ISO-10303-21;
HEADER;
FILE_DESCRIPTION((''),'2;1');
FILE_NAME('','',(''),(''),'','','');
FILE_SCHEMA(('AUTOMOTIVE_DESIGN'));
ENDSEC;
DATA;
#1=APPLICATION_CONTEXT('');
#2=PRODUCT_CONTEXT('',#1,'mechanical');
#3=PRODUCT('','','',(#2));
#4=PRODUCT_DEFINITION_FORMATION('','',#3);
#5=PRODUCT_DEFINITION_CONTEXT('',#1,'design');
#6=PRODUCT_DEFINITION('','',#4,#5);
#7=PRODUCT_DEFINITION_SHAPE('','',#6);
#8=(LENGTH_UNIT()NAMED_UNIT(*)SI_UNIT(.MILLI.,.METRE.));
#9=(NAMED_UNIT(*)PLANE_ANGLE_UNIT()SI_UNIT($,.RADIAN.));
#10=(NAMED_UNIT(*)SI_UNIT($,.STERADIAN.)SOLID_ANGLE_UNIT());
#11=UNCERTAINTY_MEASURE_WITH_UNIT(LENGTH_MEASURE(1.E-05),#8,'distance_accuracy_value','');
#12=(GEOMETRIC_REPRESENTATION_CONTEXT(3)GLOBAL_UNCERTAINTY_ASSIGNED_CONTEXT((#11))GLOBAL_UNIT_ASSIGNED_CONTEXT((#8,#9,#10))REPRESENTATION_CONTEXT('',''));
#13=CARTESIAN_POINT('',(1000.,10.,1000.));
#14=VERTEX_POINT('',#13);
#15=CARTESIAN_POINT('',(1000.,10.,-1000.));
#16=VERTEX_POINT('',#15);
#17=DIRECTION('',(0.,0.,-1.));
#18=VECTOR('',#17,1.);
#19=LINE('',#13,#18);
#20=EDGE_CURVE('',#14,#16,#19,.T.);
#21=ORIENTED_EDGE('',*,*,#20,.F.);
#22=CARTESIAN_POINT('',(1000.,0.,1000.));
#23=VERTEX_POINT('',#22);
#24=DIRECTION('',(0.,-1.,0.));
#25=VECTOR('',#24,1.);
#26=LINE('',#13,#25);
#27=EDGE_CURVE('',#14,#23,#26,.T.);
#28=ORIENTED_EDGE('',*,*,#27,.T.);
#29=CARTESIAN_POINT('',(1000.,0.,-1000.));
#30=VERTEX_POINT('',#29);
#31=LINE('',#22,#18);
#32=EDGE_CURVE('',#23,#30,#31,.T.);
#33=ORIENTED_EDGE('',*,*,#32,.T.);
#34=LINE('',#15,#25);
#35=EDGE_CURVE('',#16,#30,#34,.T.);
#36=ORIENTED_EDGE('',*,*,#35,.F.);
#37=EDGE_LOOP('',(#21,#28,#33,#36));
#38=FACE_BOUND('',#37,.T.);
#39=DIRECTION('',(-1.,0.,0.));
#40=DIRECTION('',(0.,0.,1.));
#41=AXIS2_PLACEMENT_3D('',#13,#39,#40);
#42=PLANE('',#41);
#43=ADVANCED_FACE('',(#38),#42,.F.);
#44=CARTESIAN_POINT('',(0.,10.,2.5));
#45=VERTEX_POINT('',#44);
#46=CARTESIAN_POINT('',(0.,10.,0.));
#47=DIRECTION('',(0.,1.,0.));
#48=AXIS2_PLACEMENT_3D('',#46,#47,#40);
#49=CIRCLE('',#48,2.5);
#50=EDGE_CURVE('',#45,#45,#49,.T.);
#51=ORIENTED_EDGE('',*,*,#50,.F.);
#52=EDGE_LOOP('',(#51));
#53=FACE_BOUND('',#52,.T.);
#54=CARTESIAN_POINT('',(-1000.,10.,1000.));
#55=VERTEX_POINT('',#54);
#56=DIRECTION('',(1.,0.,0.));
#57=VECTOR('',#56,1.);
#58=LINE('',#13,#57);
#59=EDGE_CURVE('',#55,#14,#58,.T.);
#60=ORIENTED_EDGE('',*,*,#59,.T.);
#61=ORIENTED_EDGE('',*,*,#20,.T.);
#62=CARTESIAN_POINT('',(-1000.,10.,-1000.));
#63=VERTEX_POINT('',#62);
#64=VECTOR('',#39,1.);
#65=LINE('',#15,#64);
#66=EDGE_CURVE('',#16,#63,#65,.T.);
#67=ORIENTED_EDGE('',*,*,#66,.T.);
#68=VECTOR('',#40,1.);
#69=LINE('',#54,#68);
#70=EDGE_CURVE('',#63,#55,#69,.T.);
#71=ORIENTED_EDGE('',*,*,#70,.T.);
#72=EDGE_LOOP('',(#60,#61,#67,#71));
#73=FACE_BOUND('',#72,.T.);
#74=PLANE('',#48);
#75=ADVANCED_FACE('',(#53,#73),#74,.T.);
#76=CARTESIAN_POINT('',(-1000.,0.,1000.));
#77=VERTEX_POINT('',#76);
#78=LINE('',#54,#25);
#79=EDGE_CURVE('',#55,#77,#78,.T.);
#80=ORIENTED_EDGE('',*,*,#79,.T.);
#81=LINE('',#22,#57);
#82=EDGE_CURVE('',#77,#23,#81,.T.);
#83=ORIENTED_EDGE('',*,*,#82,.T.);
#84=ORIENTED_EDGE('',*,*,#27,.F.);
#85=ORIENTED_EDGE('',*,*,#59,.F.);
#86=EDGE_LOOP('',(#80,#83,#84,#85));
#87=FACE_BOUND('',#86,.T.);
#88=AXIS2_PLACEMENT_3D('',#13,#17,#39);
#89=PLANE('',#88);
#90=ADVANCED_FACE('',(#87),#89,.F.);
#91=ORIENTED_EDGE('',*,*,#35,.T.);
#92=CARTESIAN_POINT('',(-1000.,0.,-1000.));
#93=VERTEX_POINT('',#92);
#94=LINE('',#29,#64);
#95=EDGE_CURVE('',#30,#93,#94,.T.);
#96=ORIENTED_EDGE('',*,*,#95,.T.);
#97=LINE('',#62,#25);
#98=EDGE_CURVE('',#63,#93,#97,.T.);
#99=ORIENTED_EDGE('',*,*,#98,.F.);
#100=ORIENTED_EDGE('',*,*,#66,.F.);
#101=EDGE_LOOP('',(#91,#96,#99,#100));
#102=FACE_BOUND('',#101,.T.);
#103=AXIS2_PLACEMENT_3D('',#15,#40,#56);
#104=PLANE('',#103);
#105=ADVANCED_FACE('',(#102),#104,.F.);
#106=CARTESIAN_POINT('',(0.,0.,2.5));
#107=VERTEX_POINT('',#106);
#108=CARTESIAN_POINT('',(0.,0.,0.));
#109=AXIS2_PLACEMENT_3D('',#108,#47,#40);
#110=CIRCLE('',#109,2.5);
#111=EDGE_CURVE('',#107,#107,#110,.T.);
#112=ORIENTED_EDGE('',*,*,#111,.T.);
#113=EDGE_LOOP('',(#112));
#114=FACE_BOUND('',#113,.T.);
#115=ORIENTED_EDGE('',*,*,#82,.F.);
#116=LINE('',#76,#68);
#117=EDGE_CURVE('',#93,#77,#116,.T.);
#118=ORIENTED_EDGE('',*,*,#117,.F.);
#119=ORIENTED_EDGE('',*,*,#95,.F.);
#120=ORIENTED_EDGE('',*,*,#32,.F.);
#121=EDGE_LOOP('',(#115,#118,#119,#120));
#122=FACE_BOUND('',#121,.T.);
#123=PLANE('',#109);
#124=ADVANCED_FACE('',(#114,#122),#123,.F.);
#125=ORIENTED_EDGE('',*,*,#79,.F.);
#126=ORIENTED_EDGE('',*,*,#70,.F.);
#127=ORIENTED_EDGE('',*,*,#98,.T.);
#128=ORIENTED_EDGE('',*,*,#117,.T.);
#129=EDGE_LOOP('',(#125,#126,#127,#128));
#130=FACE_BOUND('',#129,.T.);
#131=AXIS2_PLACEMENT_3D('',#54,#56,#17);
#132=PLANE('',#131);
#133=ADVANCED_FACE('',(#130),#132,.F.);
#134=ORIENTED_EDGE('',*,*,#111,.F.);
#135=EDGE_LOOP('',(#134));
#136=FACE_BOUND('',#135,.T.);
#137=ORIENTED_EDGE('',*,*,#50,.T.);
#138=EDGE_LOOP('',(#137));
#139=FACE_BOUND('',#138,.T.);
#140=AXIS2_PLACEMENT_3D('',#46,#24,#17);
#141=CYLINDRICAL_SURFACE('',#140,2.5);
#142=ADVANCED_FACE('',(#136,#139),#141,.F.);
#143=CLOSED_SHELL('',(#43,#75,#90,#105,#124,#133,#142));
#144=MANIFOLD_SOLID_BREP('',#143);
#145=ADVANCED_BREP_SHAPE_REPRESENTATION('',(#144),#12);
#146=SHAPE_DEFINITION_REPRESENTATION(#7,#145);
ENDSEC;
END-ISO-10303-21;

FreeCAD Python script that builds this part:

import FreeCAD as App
import Part
import Sketcher

V = App.Vector

doc = App.newDocument("Part")
body = doc.addObject("PartDesign::Body", "Body")

# Sketch on XZ plane
sketch1 = body.newObject("Sketcher::SketchObject", "Sketch")
sketch1.AttachmentSupport = (doc.getObject("XZ_Plane"), [""])
sketch1.MapMode = "FlatFace"
sketch1.addGeometry([
    Part.LineSegment(V(-1000, -1000, 0), V(-1000, 1000, 0)),  # 0
    Part.LineSegment(V(-1000, 1000, 0), V(1000, 1000, 0)),  # 1
    Part.LineSegment(V(1000, 1000, 0), V(1000, -1000, 0)),  # 2
    Part.LineSegment(V(1000, -1000, 0), V(-1000, -1000, 0)),  # 3
    Part.Circle(V(0, 0, 0), V(0, 0, 1), 2.5),  # 4
], False)
sketch1.addConstraint([
    Sketcher.Constraint("Coincident", 0, 2, 1, 1),
    Sketcher.Constraint("Coincident", 1, 2, 2, 1),
    Sketcher.Constraint("Coincident", 2, 2, 3, 1),
    Sketcher.Constraint("Coincident", 3, 2, 0, 1),
    Sketcher.Constraint("Vertical", 0),
    Sketcher.Constraint("Horizontal", 1),
    Sketcher.Constraint("Vertical", 2),
    Sketcher.Constraint("Horizontal", 3),
    Sketcher.Constraint("Coincident", 4, 3, -1, 1),
    Sketcher.Constraint("Symmetric", 0, 2, 2, 2, -1, 1),
    Sketcher.Constraint("Equal", 3, 0),
    Sketcher.Constraint("Diameter", 4, 5.0),
    Sketcher.Constraint("DistanceX", 1, 1, 1, 2, 2000.0),
])
pad1 = body.newObject("PartDesign::Pad", "Pad")
pad1.Profile = sketch1
pad1.Length = 10
pad1.Reversed = True

doc.recompute()
